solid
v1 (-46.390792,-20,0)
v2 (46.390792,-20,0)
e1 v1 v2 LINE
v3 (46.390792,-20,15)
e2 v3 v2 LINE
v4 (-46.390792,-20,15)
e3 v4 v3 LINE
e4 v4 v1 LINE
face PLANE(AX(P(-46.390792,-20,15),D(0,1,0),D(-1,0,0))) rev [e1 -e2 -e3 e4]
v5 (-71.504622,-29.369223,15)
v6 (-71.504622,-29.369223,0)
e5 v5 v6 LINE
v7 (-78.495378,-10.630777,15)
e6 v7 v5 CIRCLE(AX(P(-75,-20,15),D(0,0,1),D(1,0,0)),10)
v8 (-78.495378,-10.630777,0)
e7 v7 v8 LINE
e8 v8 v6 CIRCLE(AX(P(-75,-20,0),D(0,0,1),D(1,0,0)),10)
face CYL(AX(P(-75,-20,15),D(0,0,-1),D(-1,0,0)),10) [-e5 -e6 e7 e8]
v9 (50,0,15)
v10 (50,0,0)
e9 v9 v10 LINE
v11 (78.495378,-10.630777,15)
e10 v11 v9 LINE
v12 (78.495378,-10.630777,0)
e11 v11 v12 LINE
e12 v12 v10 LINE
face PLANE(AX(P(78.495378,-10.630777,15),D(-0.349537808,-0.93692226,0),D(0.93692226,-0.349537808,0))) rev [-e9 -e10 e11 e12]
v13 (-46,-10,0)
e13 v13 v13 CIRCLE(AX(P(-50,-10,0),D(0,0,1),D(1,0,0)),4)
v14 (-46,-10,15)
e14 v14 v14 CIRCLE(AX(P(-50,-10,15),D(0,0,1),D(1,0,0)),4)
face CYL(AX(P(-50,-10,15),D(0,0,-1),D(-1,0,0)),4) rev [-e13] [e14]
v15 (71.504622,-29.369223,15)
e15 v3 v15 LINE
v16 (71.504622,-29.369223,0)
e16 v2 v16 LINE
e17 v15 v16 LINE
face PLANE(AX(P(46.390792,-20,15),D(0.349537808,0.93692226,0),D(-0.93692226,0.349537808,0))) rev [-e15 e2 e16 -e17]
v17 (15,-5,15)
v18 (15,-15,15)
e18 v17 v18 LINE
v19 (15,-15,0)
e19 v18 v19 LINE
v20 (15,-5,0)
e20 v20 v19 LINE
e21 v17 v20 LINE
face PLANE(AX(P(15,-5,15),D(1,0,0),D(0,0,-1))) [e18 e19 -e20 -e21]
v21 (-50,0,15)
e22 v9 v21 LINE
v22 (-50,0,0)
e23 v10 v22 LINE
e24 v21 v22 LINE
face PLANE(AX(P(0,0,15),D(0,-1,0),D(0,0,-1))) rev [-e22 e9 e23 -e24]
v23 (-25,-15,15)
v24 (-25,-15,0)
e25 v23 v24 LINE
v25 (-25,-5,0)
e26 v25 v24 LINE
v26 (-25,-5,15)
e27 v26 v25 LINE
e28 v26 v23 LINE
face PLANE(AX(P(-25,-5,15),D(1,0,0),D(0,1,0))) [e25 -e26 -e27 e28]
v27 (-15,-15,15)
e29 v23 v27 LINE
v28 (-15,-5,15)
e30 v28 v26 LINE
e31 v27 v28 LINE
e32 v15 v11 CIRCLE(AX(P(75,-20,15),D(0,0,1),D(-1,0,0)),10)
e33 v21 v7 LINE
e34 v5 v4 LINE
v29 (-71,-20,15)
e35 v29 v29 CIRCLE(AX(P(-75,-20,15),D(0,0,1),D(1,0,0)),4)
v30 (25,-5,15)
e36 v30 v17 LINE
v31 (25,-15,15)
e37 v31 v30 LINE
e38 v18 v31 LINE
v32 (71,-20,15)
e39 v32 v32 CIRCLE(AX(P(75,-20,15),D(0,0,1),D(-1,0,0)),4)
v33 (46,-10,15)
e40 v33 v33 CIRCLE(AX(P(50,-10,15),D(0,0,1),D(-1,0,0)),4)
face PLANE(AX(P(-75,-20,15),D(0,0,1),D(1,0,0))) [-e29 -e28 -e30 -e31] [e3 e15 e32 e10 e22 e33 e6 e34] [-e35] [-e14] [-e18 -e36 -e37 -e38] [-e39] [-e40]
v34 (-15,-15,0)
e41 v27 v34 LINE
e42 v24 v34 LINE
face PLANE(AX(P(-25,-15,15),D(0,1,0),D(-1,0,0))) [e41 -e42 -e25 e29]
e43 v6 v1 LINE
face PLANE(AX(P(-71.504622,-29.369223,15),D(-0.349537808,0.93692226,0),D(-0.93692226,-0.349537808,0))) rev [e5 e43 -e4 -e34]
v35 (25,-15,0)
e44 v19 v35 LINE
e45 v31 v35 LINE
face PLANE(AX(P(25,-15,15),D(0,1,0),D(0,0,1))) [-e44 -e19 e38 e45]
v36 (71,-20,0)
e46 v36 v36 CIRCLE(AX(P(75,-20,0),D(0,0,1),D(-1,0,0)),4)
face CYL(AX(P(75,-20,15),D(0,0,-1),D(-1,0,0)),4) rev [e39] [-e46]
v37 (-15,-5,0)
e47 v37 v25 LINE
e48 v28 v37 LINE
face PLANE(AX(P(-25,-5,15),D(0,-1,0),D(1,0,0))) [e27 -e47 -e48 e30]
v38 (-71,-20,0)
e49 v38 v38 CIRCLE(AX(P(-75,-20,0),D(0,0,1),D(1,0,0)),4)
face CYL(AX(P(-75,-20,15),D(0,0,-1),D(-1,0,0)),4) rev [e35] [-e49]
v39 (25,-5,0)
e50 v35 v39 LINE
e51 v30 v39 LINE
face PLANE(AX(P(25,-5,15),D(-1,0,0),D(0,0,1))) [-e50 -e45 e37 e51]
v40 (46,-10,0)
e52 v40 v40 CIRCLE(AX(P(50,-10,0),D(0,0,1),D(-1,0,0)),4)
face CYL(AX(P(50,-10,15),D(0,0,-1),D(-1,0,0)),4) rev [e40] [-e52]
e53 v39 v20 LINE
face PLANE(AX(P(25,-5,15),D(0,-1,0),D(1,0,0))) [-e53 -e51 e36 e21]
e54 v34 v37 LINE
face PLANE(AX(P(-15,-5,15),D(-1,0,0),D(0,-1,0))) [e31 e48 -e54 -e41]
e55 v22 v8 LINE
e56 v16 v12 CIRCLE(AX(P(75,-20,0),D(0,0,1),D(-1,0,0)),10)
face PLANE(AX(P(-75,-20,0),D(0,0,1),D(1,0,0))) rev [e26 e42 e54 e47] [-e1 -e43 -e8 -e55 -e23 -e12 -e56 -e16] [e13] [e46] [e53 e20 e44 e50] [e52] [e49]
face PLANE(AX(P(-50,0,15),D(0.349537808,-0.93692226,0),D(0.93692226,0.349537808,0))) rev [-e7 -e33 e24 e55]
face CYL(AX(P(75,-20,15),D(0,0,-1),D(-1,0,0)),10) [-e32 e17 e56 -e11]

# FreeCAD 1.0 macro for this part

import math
import FreeCAD as App
import Part
import Sketcher
Q = App.Units.Quantity

doc = App.newDocument("Part")
body = doc.addObject("PartDesign::Body", "Body")

# Sketch on XY plane
sketch1 = doc.addObject("Sketcher::SketchObject", "Sketch")
body.addObject(sketch1)
sketch1.AttachmentSupport = (doc.XY_Plane, [""])
sketch1.MapMode = "FlatFace"
sketch1.addGeometry(Part.LineSegment(App.Vector(78.495378, -10.630777, 0), App.Vector(50, 0, 0)), False)
sketch1.addGeometry(Part.LineSegment(App.Vector(50, 0, 0), App.Vector(-50, 0, 0)), False)
sketch1.addGeometry(Part.LineSegment(App.Vector(-50, 0, 0), App.Vector(-78.495378, -10.630777, 0)), False)
sketch1.addGeometry(Part.ArcOfCircle(Part.Circle(App.Vector(-75, -20, 0), App.Vector(0, 0, 1), 10), math.radians(110.459048), math.radians(290.459048)), False)
sketch1.addGeometry(Part.LineSegment(App.Vector(-71.504622, -29.369223, 0), App.Vector(-46.390792, -20, 0)), False)
sketch1.addGeometry(Part.LineSegment(App.Vector(-46.390792, -20, 0), App.Vector(46.390792, -20, 0)), False)
sketch1.addGeometry(Part.LineSegment(App.Vector(46.390792, -20, 0), App.Vector(71.504622, -29.369223, 0)), False)
sketch1.addGeometry(Part.ArcOfCircle(Part.Circle(App.Vector(75, -20, 0), App.Vector(0, 0, 1), 10), math.radians(-110.459048), math.radians(69.540952)), False)
sketch1.addGeometry(Part.Circle(App.Vector(-75, -20, 0), App.Vector(0, 0, 1), 4), False)
sketch1.addGeometry(Part.Circle(App.Vector(75, -20, 0), App.Vector(0, 0, 1), 4), False)
sketch1.addGeometry(Part.Circle(App.Vector(-50, -10, 0), App.Vector(0, 0, 1), 4), False)
sketch1.addGeometry(Part.LineSegment(App.Vector(-15, -15, 0), App.Vector(-25, -15, 0)), False)
sketch1.addGeometry(Part.LineSegment(App.Vector(-25, -15, 0), App.Vector(-25, -5, 0)), False)
sketch1.addGeometry(Part.LineSegment(App.Vector(-25, -5, 0), App.Vector(-15, -5, 0)), False)
sketch1.addGeometry(Part.LineSegment(App.Vector(-15, -5, 0), App.Vector(-15, -15, 0)), False)
sketch1.addGeometry(Part.LineSegment(App.Vector(25, -15, 0), App.Vector(15, -15, 0)), False)
sketch1.addGeometry(Part.LineSegment(App.Vector(15, -15, 0), App.Vector(15, -5, 0)), False)
sketch1.addGeometry(Part.LineSegment(App.Vector(15, -5, 0), App.Vector(25, -5, 0)), False)
sketch1.addGeometry(Part.LineSegment(App.Vector(25, -5, 0), App.Vector(25, -15, 0)), False)
sketch1.addGeometry(Part.Circle(App.Vector(50, -10, 0), App.Vector(0, 0, 1), 4), False)
sketch1.addConstraint(Sketcher.Constraint("Coincident", 0, 2, 1, 1))
sketch1.addConstraint(Sketcher.Constraint("Coincident", 1, 2, 2, 1))
sketch1.addConstraint(Sketcher.Constraint("Tangent", 2, 2, 3, 1))
sketch1.addConstraint(Sketcher.Constraint("Tangent", 3, 2, 4, 1))
sketch1.addConstraint(Sketcher.Constraint("Coincident", 4, 2, 5, 1))
sketch1.addConstraint(Sketcher.Constraint("Coincident", 5, 2, 6, 1))
sketch1.addConstraint(Sketcher.Constraint("Tangent", 6, 2, 7, 1))
sketch1.addConstraint(Sketcher.Constraint("Tangent", 7, 2, 0, 1))
sketch1.addConstraint(Sketcher.Constraint("Coincident", 11, 2, 12, 1))
sketch1.addConstraint(Sketcher.Constraint("Coincident", 12, 2, 13, 1))
sketch1.addConstraint(Sketcher.Constraint("Coincident", 13, 2, 14, 1))
sketch1.addConstraint(Sketcher.Constraint("Coincident", 14, 2, 11, 1))
sketch1.addConstraint(Sketcher.Constraint("Coincident", 15, 2, 16, 1))
sketch1.addConstraint(Sketcher.Constraint("Coincident", 16, 2, 17, 1))
sketch1.addConstraint(Sketcher.Constraint("Coincident", 17, 2, 18, 1))
sketch1.addConstraint(Sketcher.Constraint("Coincident", 18, 2, 15, 1))
sketch1.addConstraint(Sketcher.Constraint("Horizontal", 1))
sketch1.addConstraint(Sketcher.Constraint("Horizontal", 5))
sketch1.addConstraint(Sketcher.Constraint("Horizontal", 11))
sketch1.addConstraint(Sketcher.Constraint("Vertical", 12))
sketch1.addConstraint(Sketcher.Constraint("Horizontal", 13))
sketch1.addConstraint(Sketcher.Constraint("Vertical", 14))
sketch1.addConstraint(Sketcher.Constraint("Horizontal", 15))
sketch1.addConstraint(Sketcher.Constraint("Vertical", 16))
sketch1.addConstraint(Sketcher.Constraint("Horizontal", 17))
sketch1.addConstraint(Sketcher.Constraint("Vertical", 18))
sketch1.addConstraint(Sketcher.Constraint("Coincident", 8, 3, 3, 3))
sketch1.addConstraint(Sketcher.Constraint("Coincident", 9, 3, 7, 3))
sketch1.addConstraint(Sketcher.Constraint("Equal", 3, 7))
sketch1.addConstraint(Sketcher.Constraint("Equal", 8, 9))
sketch1.addConstraint(Sketcher.Constraint("Equal", 9, 10))
sketch1.addConstraint(Sketcher.Constraint("Equal", 10, 19))
sketch1.addConstraint(Sketcher.Constraint("Symmetric", 0, 2, 1, 2, -1, 1))
sketch1.addConstraint(Sketcher.Constraint("Symmetric", 3, 3, 7, 3, -2))
sketch1.addConstraint(Sketcher.Constraint("Symmetric", 10, 3, 19, 3, -2))
sketch1.addConstraint(Sketcher.Constraint("Symmetric", 14, 2, 15, 2, -2))
sketch1.addConstraint(Sketcher.Constraint("Symmetric", 12, 2, 17, 2, -2))
sketch1.addConstraint(Sketcher.Constraint("Parallel", 2, 4))
sketch1.addConstraint(Sketcher.Constraint("Parallel", 0, 6))
sketch1.addConstraint(Sketcher.Constraint("Horizontal", 9, 3, 4, 2))
sketch1.addConstraint(Sketcher.Constraint("Vertical", 19, 3, 0, 2))
sketch1.addConstraint(Sketcher.Constraint("Equal", 17, 12))
sketch1.addConstraint(Sketcher.Constraint("Diameter", 8, Q("8 mm")))
sketch1.addConstraint(Sketcher.Constraint("Radius", 3, Q("10 mm")))
sketch1.addConstraint(Sketcher.Constraint("DistanceX", 1, 2, 1, 1, Q("100 mm")))
sketch1.addConstraint(Sketcher.Constraint("DistanceX", 11, 2, 11, 1, Q("10 mm")))
sketch1.addConstraint(Sketcher.Constraint("DistanceX", 3, 3, -1, 1, Q("75 mm")))
sketch1.addConstraint(Sketcher.Constraint("DistanceY", 3, 3, -1, 1, Q("20 mm")))
sketch1.addConstraint(Sketcher.Constraint("DistanceY", 10, 3, -1, 1, Q("10 mm")))
sketch1.addConstraint(Sketcher.Constraint("DistanceX", 11, 2, -1, 1, Q("25 mm")))
sketch1.addConstraint(Sketcher.Constraint("DistanceY", 11, 2, -1, 1, Q("15 mm")))
pad1 = doc.addObject("PartDesign::Pad", "Pad")
body.addObject(pad1)
pad1.Profile = sketch1
pad1.Length = 15

doc.recompute()
